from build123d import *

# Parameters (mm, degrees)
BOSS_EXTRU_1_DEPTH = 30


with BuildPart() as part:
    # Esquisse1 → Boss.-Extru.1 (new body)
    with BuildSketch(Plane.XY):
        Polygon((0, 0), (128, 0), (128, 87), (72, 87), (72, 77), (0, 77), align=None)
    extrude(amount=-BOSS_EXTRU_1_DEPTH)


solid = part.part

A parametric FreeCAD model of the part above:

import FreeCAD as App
import Part
import Sketcher

doc = App.newDocument("Part")
body = doc.addObject("PartDesign::Body", "Body")

# Sketch on XY plane
sketch1 = body.newObject("Sketcher::SketchObject", "Sketch")
sketch1.AttachmentSupport = (doc.getObject("XY_Plane"), [""])
sketch1.MapMode = "FlatFace"
sketch1.addGeometry([
    Part.LineSegment(App.Vector(0, 0, 0), App.Vector(128, 0, 0)),  # 0
    Part.LineSegment(App.Vector(128, 0, 0), App.Vector(128, 87, 0)),  # 1
    Part.LineSegment(App.Vector(128, 87, 0), App.Vector(72, 87, 0)),  # 2
    Part.LineSegment(App.Vector(72, 87, 0), App.Vector(72, 77, 0)),  # 3
    Part.LineSegment(App.Vector(72, 77, 0), App.Vector(0, 77, 0)),  # 4
    Part.LineSegment(App.Vector(0, 77, 0), App.Vector(0, 0, 0)),  # 5
], False)
sketch1.addConstraint([
    Sketcher.Constraint("Coincident", 0, 2, 1, 1),
    Sketcher.Constraint("Coincident", 1, 2, 2, 1),
    Sketcher.Constraint("Coincident", 2, 2, 3, 1),
    Sketcher.Constraint("Coincident", 3, 2, 4, 1),
    Sketcher.Constraint("Coincident", 4, 2, 5, 1),
    Sketcher.Constraint("Coincident", 5, 2, 0, 1),
    Sketcher.Constraint("Horizontal", 0),
    Sketcher.Constraint("Vertical", 1),
    Sketcher.Constraint("Horizontal", 2),
    Sketcher.Constraint("Vertical", 3),
    Sketcher.Constraint("Horizontal", 4),
    Sketcher.Constraint("Vertical", 5),
    Sketcher.Constraint("Coincident", 5, 2, -1, 1),
    Sketcher.Constraint("DistanceX", 0, 1, 0, 2, 128.0),
    Sketcher.Constraint("DistanceX", 2, 2, 2, 1, 56.0),
    Sketcher.Constraint("DistanceY", 1, 1, 1, 2, 87.0),
    Sketcher.Constraint("DistanceY", 3, 2, 3, 1, 10.0),
])
pad1 = body.newObject("PartDesign::Pad", "Pad")
pad1.Profile = sketch1
pad1.Length = 30
pad1.Reversed = True

doc.recompute()
